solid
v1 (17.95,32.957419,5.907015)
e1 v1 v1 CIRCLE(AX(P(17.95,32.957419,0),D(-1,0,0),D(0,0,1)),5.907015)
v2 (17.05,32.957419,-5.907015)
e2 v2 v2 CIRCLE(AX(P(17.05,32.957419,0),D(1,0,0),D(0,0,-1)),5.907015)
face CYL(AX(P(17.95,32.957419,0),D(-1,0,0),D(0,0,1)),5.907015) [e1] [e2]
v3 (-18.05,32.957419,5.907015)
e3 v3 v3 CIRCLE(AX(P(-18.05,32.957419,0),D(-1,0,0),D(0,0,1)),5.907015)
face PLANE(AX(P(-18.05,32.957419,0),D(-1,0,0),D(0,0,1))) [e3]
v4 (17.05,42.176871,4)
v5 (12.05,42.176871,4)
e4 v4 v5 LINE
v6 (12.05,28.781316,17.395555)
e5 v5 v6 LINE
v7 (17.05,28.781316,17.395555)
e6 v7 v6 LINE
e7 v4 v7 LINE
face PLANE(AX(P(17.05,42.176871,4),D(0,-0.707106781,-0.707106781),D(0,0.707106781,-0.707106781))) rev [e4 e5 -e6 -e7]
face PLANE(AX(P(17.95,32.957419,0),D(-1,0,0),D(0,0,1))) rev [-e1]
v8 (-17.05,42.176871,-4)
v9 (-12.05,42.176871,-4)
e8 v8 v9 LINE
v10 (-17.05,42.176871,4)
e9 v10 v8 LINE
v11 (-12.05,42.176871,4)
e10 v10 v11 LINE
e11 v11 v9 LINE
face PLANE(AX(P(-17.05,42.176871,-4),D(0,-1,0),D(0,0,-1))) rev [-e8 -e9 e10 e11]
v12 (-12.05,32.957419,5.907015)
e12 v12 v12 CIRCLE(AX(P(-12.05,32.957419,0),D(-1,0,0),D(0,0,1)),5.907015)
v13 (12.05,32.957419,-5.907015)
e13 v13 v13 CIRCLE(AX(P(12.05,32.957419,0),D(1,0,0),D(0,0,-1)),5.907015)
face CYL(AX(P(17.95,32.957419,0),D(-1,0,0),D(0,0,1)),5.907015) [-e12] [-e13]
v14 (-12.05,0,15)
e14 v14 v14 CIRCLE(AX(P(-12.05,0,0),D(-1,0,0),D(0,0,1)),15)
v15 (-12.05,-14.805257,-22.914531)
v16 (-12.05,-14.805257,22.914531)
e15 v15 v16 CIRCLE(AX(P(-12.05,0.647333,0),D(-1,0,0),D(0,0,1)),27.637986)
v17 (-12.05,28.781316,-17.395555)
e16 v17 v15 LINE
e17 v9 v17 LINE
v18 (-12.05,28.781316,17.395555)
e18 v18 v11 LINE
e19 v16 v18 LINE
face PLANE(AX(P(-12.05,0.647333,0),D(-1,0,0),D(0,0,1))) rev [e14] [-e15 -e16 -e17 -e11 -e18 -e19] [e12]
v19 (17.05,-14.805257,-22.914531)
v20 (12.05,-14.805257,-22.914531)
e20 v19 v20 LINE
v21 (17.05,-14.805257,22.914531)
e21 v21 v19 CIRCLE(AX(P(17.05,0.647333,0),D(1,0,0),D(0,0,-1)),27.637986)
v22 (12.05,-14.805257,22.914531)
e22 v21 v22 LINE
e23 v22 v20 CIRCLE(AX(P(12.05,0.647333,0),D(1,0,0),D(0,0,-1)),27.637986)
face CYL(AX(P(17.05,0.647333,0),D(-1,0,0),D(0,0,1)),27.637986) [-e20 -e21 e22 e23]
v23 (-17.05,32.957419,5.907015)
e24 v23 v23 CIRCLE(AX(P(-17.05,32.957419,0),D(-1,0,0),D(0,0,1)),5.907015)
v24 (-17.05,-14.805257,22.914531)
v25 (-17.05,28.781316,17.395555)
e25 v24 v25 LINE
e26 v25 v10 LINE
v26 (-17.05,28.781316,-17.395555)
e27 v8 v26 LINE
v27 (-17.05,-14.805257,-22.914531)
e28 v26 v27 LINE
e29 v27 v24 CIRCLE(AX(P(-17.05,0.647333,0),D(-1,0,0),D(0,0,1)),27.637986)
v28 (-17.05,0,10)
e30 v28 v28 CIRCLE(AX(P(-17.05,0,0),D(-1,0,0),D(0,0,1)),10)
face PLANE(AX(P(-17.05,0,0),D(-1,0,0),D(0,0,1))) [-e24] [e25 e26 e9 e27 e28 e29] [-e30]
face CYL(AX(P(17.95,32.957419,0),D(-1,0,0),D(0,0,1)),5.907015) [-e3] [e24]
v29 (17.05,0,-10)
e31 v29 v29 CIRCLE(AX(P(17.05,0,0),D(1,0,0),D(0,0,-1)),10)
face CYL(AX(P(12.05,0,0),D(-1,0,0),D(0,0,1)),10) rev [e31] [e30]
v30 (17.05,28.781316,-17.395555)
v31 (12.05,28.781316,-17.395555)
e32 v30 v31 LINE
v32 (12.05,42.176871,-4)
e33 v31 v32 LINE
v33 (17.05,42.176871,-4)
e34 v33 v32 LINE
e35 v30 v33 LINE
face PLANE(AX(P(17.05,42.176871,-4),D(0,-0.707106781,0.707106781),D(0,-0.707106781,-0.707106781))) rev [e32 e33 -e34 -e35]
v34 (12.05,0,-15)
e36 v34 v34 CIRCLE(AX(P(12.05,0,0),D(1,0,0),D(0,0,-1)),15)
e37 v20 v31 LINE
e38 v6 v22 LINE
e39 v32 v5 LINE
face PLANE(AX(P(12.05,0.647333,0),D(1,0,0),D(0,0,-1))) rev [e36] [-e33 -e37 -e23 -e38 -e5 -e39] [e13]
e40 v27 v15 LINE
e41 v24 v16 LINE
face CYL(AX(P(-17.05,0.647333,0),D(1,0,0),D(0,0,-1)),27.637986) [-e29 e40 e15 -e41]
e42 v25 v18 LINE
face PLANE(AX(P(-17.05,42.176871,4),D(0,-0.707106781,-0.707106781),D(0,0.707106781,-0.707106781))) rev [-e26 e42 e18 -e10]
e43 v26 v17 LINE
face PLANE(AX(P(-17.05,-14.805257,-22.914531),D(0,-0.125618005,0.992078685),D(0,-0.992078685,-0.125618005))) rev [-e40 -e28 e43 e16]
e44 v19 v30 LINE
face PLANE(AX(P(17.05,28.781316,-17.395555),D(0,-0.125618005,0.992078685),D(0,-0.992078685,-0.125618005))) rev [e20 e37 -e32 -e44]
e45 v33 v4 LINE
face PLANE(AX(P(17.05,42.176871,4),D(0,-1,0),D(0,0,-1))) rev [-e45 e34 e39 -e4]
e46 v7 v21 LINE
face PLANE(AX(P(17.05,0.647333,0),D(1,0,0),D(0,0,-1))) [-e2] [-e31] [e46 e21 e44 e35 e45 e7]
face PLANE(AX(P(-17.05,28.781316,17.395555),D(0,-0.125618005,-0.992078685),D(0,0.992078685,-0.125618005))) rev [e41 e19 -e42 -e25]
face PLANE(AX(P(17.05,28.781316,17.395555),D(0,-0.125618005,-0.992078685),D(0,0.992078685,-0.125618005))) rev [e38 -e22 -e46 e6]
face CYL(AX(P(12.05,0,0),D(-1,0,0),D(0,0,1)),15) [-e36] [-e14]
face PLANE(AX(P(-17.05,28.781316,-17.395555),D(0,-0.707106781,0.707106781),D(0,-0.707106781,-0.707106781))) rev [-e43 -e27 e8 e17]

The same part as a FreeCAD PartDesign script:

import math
import FreeCAD as App
import Part
import Sketcher
from FreeCAD import Vector

doc = App.newDocument("Part")
body = doc.addObject("PartDesign::Body", "Body")

# Sketch on YZ plane
sketch1 = body.newObject("Sketcher::SketchObject", "Sketch")
sketch1.AttachmentSupport = (doc.getObject("YZ_Plane"), [""])
sketch1.MapMode = "FlatFace"
sketch1.addGeometry([
    Part.Circle(Vector(0, 0, 0), Vector(0, 0, 1), 15),
    Part.Circle(Vector(0, 0, 0), Vector(0, 0, 1), 10),
], False)
sketch1.addConstraint([
    Sketcher.Constraint("Coincident", 0, 3, -1, 1),
    Sketcher.Constraint("Coincident", 1, 3, -1, 1),
    Sketcher.Constraint("Diameter", 0, 30.0),
    Sketcher.Constraint("Diameter", 1, 20.0),
])
pad1 = body.newObject("PartDesign::Pad", "Pad")
pad1.Profile = sketch1
pad1.Length = 24.1
pad1.Midplane = True

# Sketch on YZ plane
sketch2 = body.newObject("Sketcher::SketchObject", "Sketch001")
sketch2.AttachmentSupport = (doc.getObject("YZ_Plane"), [""])
sketch2.MapMode = "FlatFace"
sketch2.AttachmentOffset = App.Placement(Vector(0, 0, 12.05), App.Rotation())
sketch2.addGeometry([
    Part.LineSegment(Vector(42, -4, 0), Vector(42, 4, 0)),  # 0
    Part.LineSegment(Vector(42, 4, 0), Vector(29, 17, 0)),  # 1
    Part.LineSegment(Vector(29, 17, 0), Vector(-15, 23, 0)),  # 2
    Part.ArcOfCircle(Part.Circle(Vector(1, 0, 0), Vector(0, 0, 1), 28), math.radians(124), math.radians(236)),  # 3
    Part.LineSegment(Vector(-15, -23, 0), Vector(29, -17, 0)),  # 4
    Part.LineSegment(Vector(29, -17, 0), Vector(42, -4, 0)),  # 5
    Part.Circle(Vector(0, 0, 0), Vector(0, 0, 1), 10),  # 6
], False)
sketch2.addConstraint([
    Sketcher.Constraint("Coincident", 0, 2, 1, 1),
    Sketcher.Constraint("Coincident", 1, 2, 2, 1),
    Sketcher.Constraint("Coincident", 2, 2, 3, 1),
    Sketcher.Constraint("Coincident", 3, 2, 4, 1),
    Sketcher.Constraint("Coincident", 4, 2, 5, 1),
    Sketcher.Constraint("Coincident", 5, 2, 0, 1),
    Sketcher.Constraint("Vertical", 0),
    Sketcher.Constraint("Coincident", 6, 3, -1, 1),
    Sketcher.Constraint("Symmetric", 2, 2, 3, 2, -1),
    Sketcher.Constraint("Symmetric", 1, 2, 4, 2, -1),
    Sketcher.Constraint("Perpendicular", 1, 5),
    Sketcher.Constraint("Equal", 1, 5),
    Sketcher.Constraint("Diameter", 6, 20.0),
    Sketcher.Constraint("DistanceY", 0, 1, 0, 2, 8.0),
    Sketcher.Constraint("Radius", 3, 27.637986),
    Sketcher.Constraint("DistanceX", -1, 1, 0, 2, 42.176871),
    Sketcher.Constraint("DistanceY", -1, 1, 2, 2, 22.914531),
    Sketcher.Constraint("DistanceX", 3, 3, 0, 2, 41.529538),
    Sketcher.Constraint("DistanceY", 4, 2, 1, 2, 34.79111),
])
pad2 = body.newObject("PartDesign::Pad", "Pad001")
pad2.Profile = sketch2
pad2.Length = 5
body2 = doc.addObject("PartDesign::Body", "Body001")

# Sketch on YZ plane
sketch3 = body2.newObject("Sketcher::SketchObject", "Sketch002")
sketch3.AttachmentSupport = (doc.getObject("YZ_Plane001"), [""])
sketch3.MapMode = "FlatFace"
sketch3.AttachmentOffset = App.Placement(Vector(0, 0, -12.05), App.Rotation())
sketch3.addGeometry([
    Part.LineSegment(Vector(42, 4, 0), Vector(42, -4, 0)),  # 0
    Part.LineSegment(Vector(42, -4, 0), Vector(29, -17, 0)),  # 1
    Part.LineSegment(Vector(29, -17, 0), Vector(-15, -23, 0)),  # 2
    Part.ArcOfCircle(Part.Circle(Vector(1, 0, 0), Vector(0, 0, 1), 28), math.radians(124), math.radians(236)),  # 3
    Part.LineSegment(Vector(-15, 23, 0), Vector(29, 17, 0)),  # 4
    Part.LineSegment(Vector(29, 17, 0), Vector(42, 4, 0)),  # 5
    Part.Circle(Vector(0, 0, 0), Vector(0, 0, 1), 15),  # 6
], False)
sketch3.addConstraint([
    Sketcher.Constraint("Coincident", 0, 2, 1, 1),
    Sketcher.Constraint("Coincident", 1, 2, 2, 1),
    Sketcher.Constraint("Coincident", 2, 2, 3, 2),
    Sketcher.Constraint("Coincident", 3, 1, 4, 1),
    Sketcher.Constraint("Coincident", 4, 2, 5, 1),
    Sketcher.Constraint("Coincident", 5, 2, 0, 1),
    Sketcher.Constraint("Vertical", 0),
    Sketcher.Constraint("Coincident", 6, 3, -1, 1),
    Sketcher.Constraint("Symmetric", 2, 2, 3, 1, -1),
    Sketcher.Constraint("Symmetric", 1, 2, 4, 2, -1),
    Sketcher.Constraint("Perpendicular", 1, 5),
    Sketcher.Constraint("Equal", 1, 5),
    Sketcher.Constraint("Diameter", 6, 30.0),
    Sketcher.Constraint("DistanceY", 0, 2, 0, 1, 8.0),
    Sketcher.Constraint("Radius", 3, 27.637986),
    Sketcher.Constraint("DistanceX", -1, 1, 0, 2, 42.176871),
    Sketcher.Constraint("DistanceY", 2, 2, -1, 1, 22.914531),
    Sketcher.Constraint("DistanceX", 3, 3, 0, 2, 41.529538),
    Sketcher.Constraint("DistanceY", 1, 2, 4, 2, 34.79111),
])
pad3 = body2.newObject("PartDesign::Pad", "Pad002")
pad3.Profile = sketch3
pad3.Length = 5
pad3.Reversed = True
body.AllowCompound = True
doc.recompute()

boolean = body.newObject("PartDesign::Boolean", "Boolean")
boolean.Type = "Fuse"
boolean.addObjects([body2])

# Sketch on YZ plane
sketch4 = body.newObject("Sketcher::SketchObject", "Sketch003")
sketch4.AttachmentSupport = (doc.getObject("YZ_Plane"), [""])
sketch4.MapMode = "FlatFace"
sketch4.AttachmentOffset = App.Placement(Vector(0, 0, -12.05), App.Rotation())
sketch4.addGeometry([
    Part.Circle(Vector(0, 0, 0), Vector(0, 0, 1), 15),
    Part.Circle(Vector(0, 0, 0), Vector(0, 0, 1), 10),
], False)
sketch4.addConstraint([
    Sketcher.Constraint("Coincident", 0, 3, -1, 1),
    Sketcher.Constraint("Coincident", 1, 3, -1, 1),
    Sketcher.Constraint("Diameter", 0, 30.0),
    Sketcher.Constraint("Diameter", 1, 20.0),
])
pad4 = body.newObject("PartDesign::Pad", "Pad003")
pad4.Profile = sketch4
pad4.Length = 5
pad4.Reversed = True

# Sketch on YZ plane
sketch5 = body.newObject("Sketcher::SketchObject", "Sketch004")
sketch5.AttachmentSupport = (doc.getObject("YZ_Plane"), [""])
sketch5.MapMode = "FlatFace"
sketch5.AttachmentOffset = App.Placement(Vector(0, 0, -17.05), App.Rotation())
sketch5.addGeometry(Part.Circle(Vector(33, 0, 0), Vector(0, 0, 1), 6), False)
sketch5.addConstraint([
    Sketcher.Constraint("PointOnObject", 0, 3, -1),
    Sketcher.Constraint("Diameter", 0, 11.81403),
    Sketcher.Constraint("DistanceX", -1, 1, 0, 3, 32.957419),
])
pad5 = body.newObject("PartDesign::Pad", "Pad004")
pad5.Profile = sketch5
pad5.Type = "TwoLengths"
pad5.Length = 1
pad5.Length2 = 35
pad5.Reversed = True

doc.recompute()
